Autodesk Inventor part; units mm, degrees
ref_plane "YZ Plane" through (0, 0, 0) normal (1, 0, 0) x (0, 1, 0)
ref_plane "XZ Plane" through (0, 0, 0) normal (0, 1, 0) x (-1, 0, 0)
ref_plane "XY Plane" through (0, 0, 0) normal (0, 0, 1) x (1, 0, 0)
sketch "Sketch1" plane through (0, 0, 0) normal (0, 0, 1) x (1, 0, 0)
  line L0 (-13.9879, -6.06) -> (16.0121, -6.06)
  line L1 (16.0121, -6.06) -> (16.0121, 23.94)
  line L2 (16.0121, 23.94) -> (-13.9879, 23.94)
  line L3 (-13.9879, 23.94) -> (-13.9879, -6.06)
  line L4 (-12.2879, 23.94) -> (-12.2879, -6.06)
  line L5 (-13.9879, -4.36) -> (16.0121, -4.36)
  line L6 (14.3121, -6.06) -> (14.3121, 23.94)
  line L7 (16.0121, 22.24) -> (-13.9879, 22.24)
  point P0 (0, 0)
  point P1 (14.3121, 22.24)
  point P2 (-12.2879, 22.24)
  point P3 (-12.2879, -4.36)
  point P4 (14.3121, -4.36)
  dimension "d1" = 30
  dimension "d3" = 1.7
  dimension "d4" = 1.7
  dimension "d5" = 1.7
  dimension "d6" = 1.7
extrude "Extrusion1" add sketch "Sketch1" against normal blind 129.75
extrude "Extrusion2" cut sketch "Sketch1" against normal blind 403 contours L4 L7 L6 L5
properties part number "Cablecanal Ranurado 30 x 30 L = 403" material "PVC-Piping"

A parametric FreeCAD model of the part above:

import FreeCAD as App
import Part
import Sketcher

V = App.Vector
Q = App.Units.Quantity


def add_polygon(sketch, points):
    """Adds a closed chain of lines whose ends are joined by coincident constraints."""
    first, n = sketch.GeometryCount, len(points)
    for a, b in zip(points, points[1:] + points[:1]):
        sketch.addGeometry(Part.LineSegment(App.Vector(*a, 0), App.Vector(*b, 0)), False)
    for i in range(n):
        sketch.addConstraint(Sketcher.Constraint("Coincident", first + i, 2, first + (i + 1) % n, 1))

doc = App.newDocument("Part")
body = doc.addObject("PartDesign::Body", "Body")

# Sketch on XY plane
sketch1 = body.newObject("Sketcher::SketchObject", "Sketch")
sketch1.AttachmentSupport = (doc.getObject("XY_Plane"), [""])
sketch1.MapMode = "FlatFace"
add_polygon(sketch1, [(-14, -6), (16, -6), (16, 24), (-14, 24)])  # lines 0-3
sketch1.addConstraint(Sketcher.Constraint("Horizontal", 0))
sketch1.addConstraint(Sketcher.Constraint("Vertical", 1))
sketch1.addConstraint(Sketcher.Constraint("Horizontal", 2))
sketch1.addConstraint(Sketcher.Constraint("Vertical", 3))
sketch1.addConstraint(Sketcher.Constraint("Equal", 2, 1))
sketch1.addConstraint(Sketcher.Constraint("DistanceX", 0, 1, 0, 2, Q("30 mm")))
sketch1.addConstraint(Sketcher.Constraint("DistanceY", 0, 2, -1, 1, Q("6.06 mm")))
sketch1.addConstraint(Sketcher.Constraint("DistanceX", -1, 1, 0, 2, Q("16.012 mm")))
pad1 = body.newObject("PartDesign::Pad", "Pad")
pad1.Profile = sketch1
pad1.Length = 129.75
pad1.Reversed = True

# Sketch on XY plane
sketch2 = body.newObject("Sketcher::SketchObject", "Sketch001")
sketch2.AttachmentSupport = (doc.getObject("XY_Plane"), [""])
sketch2.MapMode = "FlatFace"
add_polygon(sketch2, [(-12, 22), (-12, -4), (14, -4), (14, 22)])  # lines 0-3
sketch2.addConstraint(Sketcher.Constraint("Vertical", 0))
sketch2.addConstraint(Sketcher.Constraint("Horizontal", 1))
sketch2.addConstraint(Sketcher.Constraint("Vertical", 2))
sketch2.addConstraint(Sketcher.Constraint("Horizontal", 3))
sketch2.addConstraint(Sketcher.Constraint("Equal", 3, 0))
sketch2.addConstraint(Sketcher.Constraint("DistanceX", 1, 1, 1, 2, Q("26.6 mm")))
sketch2.addConstraint(Sketcher.Constraint("DistanceY", 0, 2, -1, 1, Q("4.36 mm")))
sketch2.addConstraint(Sketcher.Constraint("DistanceX", 0, 2, -1, 1, Q("12.288 mm")))
pocket1 = body.newObject("PartDesign::Pocket", "Pocket")
pocket1.Profile = sketch2
pocket1.Length = 403

doc.recompute()
